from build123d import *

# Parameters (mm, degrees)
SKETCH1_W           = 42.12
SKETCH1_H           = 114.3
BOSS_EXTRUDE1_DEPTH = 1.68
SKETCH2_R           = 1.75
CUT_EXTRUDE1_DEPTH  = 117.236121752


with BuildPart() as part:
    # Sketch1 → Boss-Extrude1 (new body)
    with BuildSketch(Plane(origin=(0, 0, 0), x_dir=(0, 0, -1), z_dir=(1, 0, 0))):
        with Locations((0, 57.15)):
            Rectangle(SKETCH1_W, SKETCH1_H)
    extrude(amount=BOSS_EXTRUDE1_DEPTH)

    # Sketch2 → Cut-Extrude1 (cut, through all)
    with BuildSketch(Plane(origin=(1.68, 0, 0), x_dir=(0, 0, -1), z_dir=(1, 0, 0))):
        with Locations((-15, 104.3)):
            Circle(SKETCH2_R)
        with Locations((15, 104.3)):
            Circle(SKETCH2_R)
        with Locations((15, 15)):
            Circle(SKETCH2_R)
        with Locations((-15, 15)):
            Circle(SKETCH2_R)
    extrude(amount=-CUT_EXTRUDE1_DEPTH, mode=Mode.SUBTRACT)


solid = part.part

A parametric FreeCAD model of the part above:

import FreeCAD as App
import Part
import Sketcher
Q = App.Units.Quantity


def add_polygon(sketch, points):
    """Adds a closed chain of lines whose ends are joined by coincident constraints."""
    first, n = sketch.GeometryCount, len(points)
    for a, b in zip(points, points[1:] + points[:1]):
        sketch.addGeometry(Part.LineSegment(App.Vector(*a, 0), App.Vector(*b, 0)), False)
    for i in range(n):
        sketch.addConstraint(Sketcher.Constraint("Coincident", first + i, 2, first + (i + 1) % n, 1))

doc = App.newDocument("Part")
body = doc.addObject("PartDesign::Body", "Body")

# Sketch on YZ plane
sketch1 = body.newObject("Sketcher::SketchObject", "Sketch")
sketch1.AttachmentSupport = (doc.getObject("YZ_Plane"), [""])
sketch1.MapMode = "FlatFace"
add_polygon(sketch1, [(114.3, 21.06), (0, 21.06), (0, -21.06), (114.3, -21.06)])  # lines 0-3
sketch1.addConstraint(Sketcher.Constraint("Horizontal", 0))
sketch1.addConstraint(Sketcher.Constraint("Vertical", 1))
sketch1.addConstraint(Sketcher.Constraint("Horizontal", 2))
sketch1.addConstraint(Sketcher.Constraint("Vertical", 3))
sketch1.addConstraint(Sketcher.Constraint("Symmetric", 0, 2, 1, 2, -1, 1))
sketch1.addConstraint(Sketcher.Constraint("DistanceX", 0, 2, 0, 1, Q("114.3 mm")))
sketch1.addConstraint(Sketcher.Constraint("DistanceY", 1, 2, 1, 1, Q("42.12 mm")))
pad1 = body.newObject("PartDesign::Pad", "Pad")
pad1.Profile = sketch1
pad1.Length = 1.68

# Sketch on YZ plane
sketch2 = body.newObject("Sketcher::SketchObject", "Sketch001")
sketch2.AttachmentSupport = (doc.getObject("YZ_Plane"), [""])
sketch2.MapMode = "FlatFace"
sketch2.AttachmentOffset = App.Placement(App.Vector(0, 0, 1.68), App.Rotation())
sketch2.addGeometry(Part.Circle(App.Vector(104.3, 15, 0), App.Vector(0, 0, 1), 1.75), False)
sketch2.addGeometry(Part.Circle(App.Vector(104.3, -15, 0), App.Vector(0, 0, 1), 1.75), False)
sketch2.addGeometry(Part.Circle(App.Vector(15, -15, 0), App.Vector(0, 0, 1), 1.75), False)
sketch2.addGeometry(Part.Circle(App.Vector(15, 15, 0), App.Vector(0, 0, 1), 1.75), False)
sketch2.addConstraint(Sketcher.Constraint("Equal", 0, 1))
sketch2.addConstraint(Sketcher.Constraint("Equal", 1, 2))
sketch2.addConstraint(Sketcher.Constraint("Equal", 2, 3))
sketch2.addConstraint(Sketcher.Constraint("Symmetric", 0, 3, 1, 3, -1))
sketch2.addConstraint(Sketcher.Constraint("Symmetric", 2, 3, 3, 3, -1))
sketch2.addConstraint(Sketcher.Constraint("Horizontal", 1, 3, 2, 3))
sketch2.addConstraint(Sketcher.Constraint("Diameter", 0, Q("3.5 mm")))
sketch2.addConstraint(Sketcher.Constraint("DistanceY", -1, 1, 0, 3, Q("15 mm")))
sketch2.addConstraint(Sketcher.Constraint("DistanceX", -1, 1, 2, 3, Q("15 mm")))
sketch2.addConstraint(Sketcher.Constraint("DistanceX", -1, 1, 0, 3, Q("104.3 mm")))
pocket1 = body.newObject("PartDesign::Pocket", "Pocket")
pocket1.Profile = sketch2
pocket1.Type = "ThroughAll"

doc.recompute()
